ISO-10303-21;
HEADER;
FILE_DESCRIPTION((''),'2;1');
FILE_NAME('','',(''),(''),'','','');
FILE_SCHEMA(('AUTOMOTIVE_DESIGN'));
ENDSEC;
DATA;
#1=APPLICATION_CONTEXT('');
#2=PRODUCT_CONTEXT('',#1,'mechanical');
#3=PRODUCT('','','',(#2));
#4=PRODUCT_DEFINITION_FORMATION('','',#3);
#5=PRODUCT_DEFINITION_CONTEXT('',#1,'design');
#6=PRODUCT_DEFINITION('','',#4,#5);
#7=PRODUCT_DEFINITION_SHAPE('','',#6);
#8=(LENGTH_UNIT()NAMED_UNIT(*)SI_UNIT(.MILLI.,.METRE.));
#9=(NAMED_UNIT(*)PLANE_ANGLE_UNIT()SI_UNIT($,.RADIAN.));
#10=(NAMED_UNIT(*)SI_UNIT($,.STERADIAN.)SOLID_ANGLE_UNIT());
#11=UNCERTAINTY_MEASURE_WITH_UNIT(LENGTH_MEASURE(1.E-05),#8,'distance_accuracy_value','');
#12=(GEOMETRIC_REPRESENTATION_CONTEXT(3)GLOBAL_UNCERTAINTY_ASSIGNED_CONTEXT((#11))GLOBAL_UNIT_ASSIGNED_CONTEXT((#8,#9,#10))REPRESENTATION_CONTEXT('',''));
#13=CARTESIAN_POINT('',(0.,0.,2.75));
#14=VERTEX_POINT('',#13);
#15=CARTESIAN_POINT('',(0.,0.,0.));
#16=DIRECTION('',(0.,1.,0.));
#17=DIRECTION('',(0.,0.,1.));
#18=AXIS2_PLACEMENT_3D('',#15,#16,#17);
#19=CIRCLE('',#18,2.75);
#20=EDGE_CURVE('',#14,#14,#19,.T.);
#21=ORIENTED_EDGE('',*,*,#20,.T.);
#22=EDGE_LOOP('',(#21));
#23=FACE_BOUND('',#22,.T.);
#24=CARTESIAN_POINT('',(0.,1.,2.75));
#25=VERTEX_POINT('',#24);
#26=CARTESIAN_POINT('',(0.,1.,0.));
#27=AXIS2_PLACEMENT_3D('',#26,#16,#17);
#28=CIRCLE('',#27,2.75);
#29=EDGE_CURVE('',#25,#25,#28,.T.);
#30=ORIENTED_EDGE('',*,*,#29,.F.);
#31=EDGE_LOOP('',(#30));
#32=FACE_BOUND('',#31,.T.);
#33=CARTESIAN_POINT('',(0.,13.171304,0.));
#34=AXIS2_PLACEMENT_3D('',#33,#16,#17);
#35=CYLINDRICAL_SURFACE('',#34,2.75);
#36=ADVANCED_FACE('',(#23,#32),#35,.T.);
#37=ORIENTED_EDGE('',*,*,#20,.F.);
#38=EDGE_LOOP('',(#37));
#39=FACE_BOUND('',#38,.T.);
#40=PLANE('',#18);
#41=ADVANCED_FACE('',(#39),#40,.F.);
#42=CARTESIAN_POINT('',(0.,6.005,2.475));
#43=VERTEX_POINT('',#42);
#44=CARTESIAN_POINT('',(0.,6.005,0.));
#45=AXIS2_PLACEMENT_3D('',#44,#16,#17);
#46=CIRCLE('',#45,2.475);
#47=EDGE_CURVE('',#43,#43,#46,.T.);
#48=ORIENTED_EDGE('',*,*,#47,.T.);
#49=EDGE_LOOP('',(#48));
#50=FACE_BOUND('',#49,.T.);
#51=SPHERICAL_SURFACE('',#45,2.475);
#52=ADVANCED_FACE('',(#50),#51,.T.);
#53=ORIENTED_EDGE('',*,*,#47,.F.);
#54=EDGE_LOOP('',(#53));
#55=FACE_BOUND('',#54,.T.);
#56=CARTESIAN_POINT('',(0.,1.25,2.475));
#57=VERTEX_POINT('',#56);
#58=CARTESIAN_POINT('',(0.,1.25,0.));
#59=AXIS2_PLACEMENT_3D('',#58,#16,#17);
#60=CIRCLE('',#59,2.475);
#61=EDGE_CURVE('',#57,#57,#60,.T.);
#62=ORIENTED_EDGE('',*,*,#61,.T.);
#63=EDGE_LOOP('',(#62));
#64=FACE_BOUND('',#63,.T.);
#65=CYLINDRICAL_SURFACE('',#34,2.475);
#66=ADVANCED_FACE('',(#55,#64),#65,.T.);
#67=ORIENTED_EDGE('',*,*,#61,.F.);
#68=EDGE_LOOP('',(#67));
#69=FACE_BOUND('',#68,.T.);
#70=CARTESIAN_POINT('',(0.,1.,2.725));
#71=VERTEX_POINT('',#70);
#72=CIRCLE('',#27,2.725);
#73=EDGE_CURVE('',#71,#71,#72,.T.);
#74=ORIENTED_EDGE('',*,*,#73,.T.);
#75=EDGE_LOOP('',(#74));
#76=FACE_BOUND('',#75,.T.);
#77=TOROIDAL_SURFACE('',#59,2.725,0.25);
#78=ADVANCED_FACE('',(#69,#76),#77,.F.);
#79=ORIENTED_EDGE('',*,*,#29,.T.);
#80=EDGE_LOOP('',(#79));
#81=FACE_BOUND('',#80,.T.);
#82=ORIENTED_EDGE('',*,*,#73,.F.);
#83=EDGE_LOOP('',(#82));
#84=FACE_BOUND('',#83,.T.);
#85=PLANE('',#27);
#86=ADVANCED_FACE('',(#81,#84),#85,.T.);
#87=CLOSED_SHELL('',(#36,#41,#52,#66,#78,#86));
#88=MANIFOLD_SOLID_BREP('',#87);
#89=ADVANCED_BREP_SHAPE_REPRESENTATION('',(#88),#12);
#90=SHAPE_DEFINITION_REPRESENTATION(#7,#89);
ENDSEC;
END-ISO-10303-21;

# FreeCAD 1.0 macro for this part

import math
import FreeCAD as App
import Part
import Sketcher
from FreeCAD import Vector

doc = App.newDocument("Part")
body = doc.addObject("PartDesign::Body", "Body")

# Sketch on YZ plane
sketch1 = body.newObject("Sketcher::SketchObject", "Sketch")
sketch1.AttachmentSupport = (doc.getObject("YZ_Plane"), [""])
sketch1.MapMode = "FlatFace"
sketch1.addGeometry([
    Part.LineSegment(Vector(6.005, 2.475, 0), Vector(1.25, 2.475, 0)),  # 0
    Part.ArcOfCircle(Part.Circle(Vector(1.25, 2.725, 0), Vector(0, 0, 1), 0.25), math.radians(-180), math.radians(-90)),  # 1
    Part.LineSegment(Vector(1, 2.725, 0), Vector(1, 2.75, 0)),  # 2
    Part.LineSegment(Vector(1, 2.75, 0), Vector(0, 2.75, 0)),  # 3
    Part.LineSegment(Vector(0, 2.75, 0), Vector(0, 0, 0)),  # 4
    Part.LineSegment(Vector(0, 0, 0), Vector(8.48, 0, 0)),  # 5
    Part.ArcOfCircle(Part.Circle(Vector(6.005, 0, 0), Vector(0, 0, 1), 2.475), math.radians(0), math.radians(90)),  # 6
], False)
sketch1.addConstraint([
    Sketcher.Constraint("Tangent", 0, 2, 1, 2),
    Sketcher.Constraint("Tangent", 1, 1, 2, 1),
    Sketcher.Constraint("Coincident", 2, 2, 3, 1),
    Sketcher.Constraint("Coincident", 3, 2, 4, 1),
    Sketcher.Constraint("Coincident", 4, 2, 5, 1),
    Sketcher.Constraint("Coincident", 5, 2, 6, 1),
    Sketcher.Constraint("Tangent", 6, 2, 0, 1),
    Sketcher.Constraint("Horizontal", 0),
    Sketcher.Constraint("Vertical", 2),
    Sketcher.Constraint("Horizontal", 3),
    Sketcher.Constraint("Vertical", 4),
    Sketcher.Constraint("Horizontal", 5),
    Sketcher.Constraint("Coincident", 4, 2, -1, 1),
    Sketcher.Constraint("PointOnObject", 6, 3, -1),
    Sketcher.Constraint("DistanceX", 3, 2, 3, 1, 1.0),
    Sketcher.Constraint("Radius", 1, 0.25),
    Sketcher.Constraint("Radius", 6, 2.475),
    Sketcher.Constraint("DistanceX", 5, 1, 5, 2, 8.48),
    Sketcher.Constraint("DistanceY", 4, 2, 4, 1, 2.75),
])
revolution = body.newObject("PartDesign::Revolution", "Revolution")
revolution.Profile = sketch1
revolution.ReferenceAxis = (sketch1, ["H_Axis"])
revolution.Angle = 360

doc.recompute()
